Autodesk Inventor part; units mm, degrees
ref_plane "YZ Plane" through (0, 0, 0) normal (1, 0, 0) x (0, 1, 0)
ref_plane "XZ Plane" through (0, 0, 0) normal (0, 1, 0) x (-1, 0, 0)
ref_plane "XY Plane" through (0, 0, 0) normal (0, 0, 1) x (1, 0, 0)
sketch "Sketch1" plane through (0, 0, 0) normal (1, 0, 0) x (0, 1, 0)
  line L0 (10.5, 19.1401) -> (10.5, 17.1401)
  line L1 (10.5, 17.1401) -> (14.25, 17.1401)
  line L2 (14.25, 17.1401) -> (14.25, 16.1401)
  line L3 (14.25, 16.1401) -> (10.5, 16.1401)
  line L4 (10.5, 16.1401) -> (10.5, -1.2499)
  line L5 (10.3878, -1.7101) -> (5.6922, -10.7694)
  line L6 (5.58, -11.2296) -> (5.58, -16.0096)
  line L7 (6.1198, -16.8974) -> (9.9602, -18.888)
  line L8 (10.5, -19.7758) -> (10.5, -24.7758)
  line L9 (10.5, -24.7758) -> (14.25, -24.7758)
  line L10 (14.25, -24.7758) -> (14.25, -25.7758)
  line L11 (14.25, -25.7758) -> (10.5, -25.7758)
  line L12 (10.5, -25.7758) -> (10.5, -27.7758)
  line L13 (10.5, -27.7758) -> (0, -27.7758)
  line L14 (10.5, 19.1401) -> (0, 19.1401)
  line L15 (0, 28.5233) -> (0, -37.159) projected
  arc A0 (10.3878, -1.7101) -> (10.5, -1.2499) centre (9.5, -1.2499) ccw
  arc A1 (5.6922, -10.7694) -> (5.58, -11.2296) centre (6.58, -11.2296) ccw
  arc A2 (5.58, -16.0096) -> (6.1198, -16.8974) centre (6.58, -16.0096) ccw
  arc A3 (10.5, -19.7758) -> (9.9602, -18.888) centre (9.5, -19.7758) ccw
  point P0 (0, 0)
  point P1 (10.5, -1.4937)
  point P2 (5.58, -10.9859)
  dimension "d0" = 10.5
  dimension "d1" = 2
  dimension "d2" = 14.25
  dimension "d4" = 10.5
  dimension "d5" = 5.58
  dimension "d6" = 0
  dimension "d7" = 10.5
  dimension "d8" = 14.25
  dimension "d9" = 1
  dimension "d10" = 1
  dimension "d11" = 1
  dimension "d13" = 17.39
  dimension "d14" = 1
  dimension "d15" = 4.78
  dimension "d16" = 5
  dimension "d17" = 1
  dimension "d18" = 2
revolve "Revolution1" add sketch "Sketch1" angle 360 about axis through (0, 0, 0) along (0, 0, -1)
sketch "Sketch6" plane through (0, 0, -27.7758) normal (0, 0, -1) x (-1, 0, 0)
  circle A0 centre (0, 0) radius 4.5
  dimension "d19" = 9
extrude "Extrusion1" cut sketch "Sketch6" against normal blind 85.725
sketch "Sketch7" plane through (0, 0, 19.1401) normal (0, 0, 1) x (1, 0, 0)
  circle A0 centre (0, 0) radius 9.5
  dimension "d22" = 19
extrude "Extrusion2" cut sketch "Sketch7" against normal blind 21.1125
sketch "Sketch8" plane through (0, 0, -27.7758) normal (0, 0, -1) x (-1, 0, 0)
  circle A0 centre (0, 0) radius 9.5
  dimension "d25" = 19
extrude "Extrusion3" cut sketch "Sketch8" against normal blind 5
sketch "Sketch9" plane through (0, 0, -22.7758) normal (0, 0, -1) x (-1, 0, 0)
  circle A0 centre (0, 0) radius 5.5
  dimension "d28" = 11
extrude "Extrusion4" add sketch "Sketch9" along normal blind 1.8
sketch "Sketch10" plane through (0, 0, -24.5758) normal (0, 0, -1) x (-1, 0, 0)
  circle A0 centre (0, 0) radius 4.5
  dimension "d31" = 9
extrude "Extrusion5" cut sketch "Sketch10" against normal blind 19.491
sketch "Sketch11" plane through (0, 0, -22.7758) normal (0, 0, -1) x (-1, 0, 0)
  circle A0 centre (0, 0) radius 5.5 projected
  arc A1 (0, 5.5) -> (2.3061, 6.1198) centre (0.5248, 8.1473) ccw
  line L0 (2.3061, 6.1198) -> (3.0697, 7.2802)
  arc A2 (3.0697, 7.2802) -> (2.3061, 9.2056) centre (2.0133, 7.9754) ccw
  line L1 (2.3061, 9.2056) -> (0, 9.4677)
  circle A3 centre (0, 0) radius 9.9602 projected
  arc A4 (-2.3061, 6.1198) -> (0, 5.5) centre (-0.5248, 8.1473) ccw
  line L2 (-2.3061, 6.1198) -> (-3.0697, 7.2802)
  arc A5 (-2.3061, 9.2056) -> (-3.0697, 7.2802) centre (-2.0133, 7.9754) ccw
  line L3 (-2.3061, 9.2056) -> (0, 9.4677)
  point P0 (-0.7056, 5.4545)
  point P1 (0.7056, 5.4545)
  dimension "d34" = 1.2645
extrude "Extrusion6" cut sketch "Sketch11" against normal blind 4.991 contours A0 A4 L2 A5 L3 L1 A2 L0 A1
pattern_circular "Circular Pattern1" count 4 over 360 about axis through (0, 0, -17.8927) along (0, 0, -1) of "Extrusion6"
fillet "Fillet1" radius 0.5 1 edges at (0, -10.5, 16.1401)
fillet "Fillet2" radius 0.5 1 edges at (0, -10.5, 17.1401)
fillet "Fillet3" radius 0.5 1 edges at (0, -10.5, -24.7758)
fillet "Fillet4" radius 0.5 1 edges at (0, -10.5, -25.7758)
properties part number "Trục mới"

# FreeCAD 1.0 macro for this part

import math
import FreeCAD as App
import Part
import Sketcher
Q = App.Units.Quantity


def edges_at(feature, points):
    """Names of the edges that pass closest to the given points."""
    edges = feature.Shape.Edges
    near = lambda p: min(range(len(edges)), key=lambda i: edges[i].distToShape(Part.Vertex(*p))[0])
    return sorted({f"Edge{near(p) + 1}" for p in points})

doc = App.newDocument("Part")
body = doc.addObject("PartDesign::Body", "Body")

# Sketch on YZ plane
sketch1 = body.newObject("Sketcher::SketchObject", "Sketch")
sketch1.AttachmentSupport = (doc.getObject("YZ_Plane"), [""])
sketch1.MapMode = "FlatFace"
sketch1.addGeometry([
    Part.LineSegment(App.Vector(10.5, 17.14, 0), App.Vector(10.5, 19.14, 0)),  # 0
    Part.LineSegment(App.Vector(10.5, 19.14, 0), App.Vector(0, 19.14, 0)),  # 1
    Part.LineSegment(App.Vector(0, 19.14, 0), App.Vector(0, -27.78, 0)),  # 2
    Part.LineSegment(App.Vector(0, -27.78, 0), App.Vector(10.5, -27.78, 0)),  # 3
    Part.LineSegment(App.Vector(10.5, -27.78, 0), App.Vector(10.5, -25.78, 0)),  # 4
    Part.LineSegment(App.Vector(10.5, -25.78, 0), App.Vector(14.25, -25.78, 0)),  # 5
    Part.LineSegment(App.Vector(14.25, -25.78, 0), App.Vector(14.25, -24.78, 0)),  # 6
    Part.LineSegment(App.Vector(14.25, -24.78, 0), App.Vector(10.5, -24.78, 0)),  # 7
    Part.LineSegment(App.Vector(10.5, -24.78, 0), App.Vector(10.5, -19.78, 0)),  # 8
    Part.ArcOfCircle(Part.Circle(App.Vector(9.5, -19.78, 0), App.Vector(0, 0, 1), 1), math.radians(0), math.radians(63)),  # 9
    Part.LineSegment(App.Vector(9.96, -18.89, 0), App.Vector(6.12, -16.9, 0)),  # 10
    Part.ArcOfCircle(Part.Circle(App.Vector(6.58, -16.01, 0), App.Vector(0, 0, 1), 1), math.radians(180), math.radians(243)),  # 11
    Part.LineSegment(App.Vector(5.58, -16.01, 0), App.Vector(5.58, -11.23, 0)),  # 12
    Part.ArcOfCircle(Part.Circle(App.Vector(6.58, -11.23, 0), App.Vector(0, 0, 1), 1), math.radians(153), math.radians(180)),  # 13
    Part.LineSegment(App.Vector(5.69, -10.77, 0), App.Vector(10.39, -1.71, 0)),  # 14
    Part.ArcOfCircle(Part.Circle(App.Vector(9.5, -1.25, 0), App.Vector(0, 0, 1), 1), math.radians(-27), math.radians(0)),  # 15
    Part.LineSegment(App.Vector(10.5, -1.25, 0), App.Vector(10.5, 16.14, 0)),  # 16
    Part.LineSegment(App.Vector(10.5, 16.14, 0), App.Vector(14.25, 16.14, 0)),  # 17
    Part.LineSegment(App.Vector(14.25, 16.14, 0), App.Vector(14.25, 17.14, 0)),  # 18
    Part.LineSegment(App.Vector(14.25, 17.14, 0), App.Vector(10.5, 17.14, 0)),  # 19
], False)
sketch1.addConstraint([
    Sketcher.Constraint("Coincident", 0, 2, 1, 1),
    Sketcher.Constraint("Coincident", 1, 2, 2, 1),
    Sketcher.Constraint("Coincident", 2, 2, 3, 1),
    Sketcher.Constraint("Coincident", 3, 2, 4, 1),
    Sketcher.Constraint("Coincident", 4, 2, 5, 1),
    Sketcher.Constraint("Coincident", 5, 2, 6, 1),
    Sketcher.Constraint("Coincident", 6, 2, 7, 1),
    Sketcher.Constraint("Coincident", 7, 2, 8, 1),
    Sketcher.Constraint("Tangent", 8, 2, 9, 1),
    Sketcher.Constraint("Tangent", 9, 2, 10, 1),
    Sketcher.Constraint("Tangent", 10, 2, 11, 2),
    Sketcher.Constraint("Tangent", 11, 1, 12, 1),
    Sketcher.Constraint("Tangent", 12, 2, 13, 2),
    Sketcher.Constraint("Tangent", 13, 1, 14, 1),
    Sketcher.Constraint("Tangent", 14, 2, 15, 1),
    Sketcher.Constraint("Tangent", 15, 2, 16, 1),
    Sketcher.Constraint("Coincident", 16, 2, 17, 1),
    Sketcher.Constraint("Coincident", 17, 2, 18, 1),
    Sketcher.Constraint("Coincident", 18, 2, 19, 1),
    Sketcher.Constraint("Coincident", 19, 2, 0, 1),
    Sketcher.Constraint("Vertical", 0),
    Sketcher.Constraint("Horizontal", 1),
    Sketcher.Constraint("Vertical", 2),
    Sketcher.Constraint("Horizontal", 3),
    Sketcher.Constraint("Vertical", 4),
    Sketcher.Constraint("Horizontal", 5),
    Sketcher.Constraint("Vertical", 6),
    Sketcher.Constraint("Horizontal", 7),
    Sketcher.Constraint("Vertical", 8),
    Sketcher.Constraint("Vertical", 12),
    Sketcher.Constraint("Vertical", 16),
    Sketcher.Constraint("Horizontal", 17),
    Sketcher.Constraint("Vertical", 18),
    Sketcher.Constraint("Horizontal", 19),
    Sketcher.Constraint("Equal", 9, 11),
    Sketcher.Constraint("Equal", 11, 13),
    Sketcher.Constraint("Equal", 13, 15),
    Sketcher.Constraint("PointOnObject", 1, 2, -2),
    Sketcher.Constraint("Perpendicular", 10, 14),
    Sketcher.Constraint("Vertical", 9, 3, 15, 3),
    Sketcher.Constraint("Vertical", 0, 2, 3, 2),
    Sketcher.Constraint("Vertical", 4, 2, 7, 2),
    Sketcher.Constraint("Vertical", 6, 2, 17, 2),
    Sketcher.Constraint("Equal", 0, 4),
    Sketcher.Constraint("Equal", 6, 18),
    Sketcher.Constraint("Radius", 9, Q("1 mm")),
    Sketcher.Constraint("DistanceY", 0, 1, 0, 2, Q("2 mm")),
    Sketcher.Constraint("DistanceY", 6, 1, 6, 2, Q("1 mm")),
    Sketcher.Constraint("DistanceY", 8, 1, 8, 2, Q("5 mm")),
    Sketcher.Constraint("DistanceX", 1, 2, 1, 1, Q("10.5 mm")),
    Sketcher.Constraint("DistanceY", 12, 1, 12, 2, Q("4.78 mm")),
    Sketcher.Constraint("DistanceY", 16, 1, 16, 2, Q("17.39 mm")),
    Sketcher.Constraint("DistanceX", -1, 1, 5, 2, Q("14.25 mm")),
    Sketcher.Constraint("DistanceX", -1, 1, 11, 1, Q("5.58 mm")),
    Sketcher.Constraint("Angle", 10, Q("152.6009 deg")),
    Sketcher.Constraint("DistanceY", 15, 3, -1, 1, Q("1.25 mm")),
])
revolution = body.newObject("PartDesign::Revolution", "Revolution")
revolution.Profile = sketch1
revolution.ReferenceAxis = (sketch1, ["V_Axis"])
revolution.Angle = 360

# Sketch on XY plane
sketch2 = body.newObject("Sketcher::SketchObject", "Sketch001")
sketch2.AttachmentSupport = (doc.getObject("XY_Plane"), [""])
sketch2.MapMode = "FlatFace"
sketch2.AttachmentOffset = App.Placement(App.Vector(0, 0, -27.7758), App.Rotation())
sketch2.addGeometry(Part.Circle(App.Vector(0, 0, 0), App.Vector(0, 0, 1), 4.5), False)
sketch2.addConstraint([
    Sketcher.Constraint("Coincident", 0, 3, -1, 1),
    Sketcher.Constraint("Diameter", 0, Q("9 mm")),
])
pocket1 = body.newObject("PartDesign::Pocket", "Pocket")
pocket1.Profile = sketch2
pocket1.Length = 85.725
pocket1.Reversed = True

# Sketch on XY plane
sketch3 = body.newObject("Sketcher::SketchObject", "Sketch002")
sketch3.AttachmentSupport = (doc.getObject("XY_Plane"), [""])
sketch3.MapMode = "FlatFace"
sketch3.AttachmentOffset = App.Placement(App.Vector(0, 0, 19.1401), App.Rotation())
sketch3.addGeometry(Part.Circle(App.Vector(0, 0, 0), App.Vector(0, 0, 1), 10), False)
sketch3.addConstraint([
    Sketcher.Constraint("Coincident", 0, 3, -1, 1),
    Sketcher.Constraint("Diameter", 0, Q("19 mm")),
])
pocket2 = body.newObject("PartDesign::Pocket", "Pocket001")
pocket2.Profile = sketch3
pocket2.Length = 21.1125

# Sketch on XY plane
sketch4 = body.newObject("Sketcher::SketchObject", "Sketch003")
sketch4.AttachmentSupport = (doc.getObject("XY_Plane"), [""])
sketch4.MapMode = "FlatFace"
sketch4.AttachmentOffset = App.Placement(App.Vector(0, 0, -27.7758), App.Rotation())
sketch4.addGeometry(Part.Circle(App.Vector(0, 0, 0), App.Vector(0, 0, 1), 10), False)
sketch4.addConstraint([
    Sketcher.Constraint("Coincident", 0, 3, -1, 1),
    Sketcher.Constraint("Diameter", 0, Q("19 mm")),
])
pocket3 = body.newObject("PartDesign::Pocket", "Pocket002")
pocket3.Profile = sketch4
pocket3.Length = 5
pocket3.Reversed = True

# Sketch on XY plane
sketch5 = body.newObject("Sketcher::SketchObject", "Sketch004")
sketch5.AttachmentSupport = (doc.getObject("XY_Plane"), [""])
sketch5.MapMode = "FlatFace"
sketch5.AttachmentOffset = App.Placement(App.Vector(0, 0, -22.7758), App.Rotation())
sketch5.addGeometry(Part.Circle(App.Vector(0, 0, 0), App.Vector(0, 0, 1), 6), False)
sketch5.addConstraint([
    Sketcher.Constraint("Coincident", 0, 3, -1, 1),
    Sketcher.Constraint("Diameter", 0, Q("11 mm")),
])
pad1 = body.newObject("PartDesign::Pad", "Pad")
pad1.Profile = sketch5
pad1.Length = 1.8
pad1.Reversed = True

# Sketch on XY plane
sketch6 = body.newObject("Sketcher::SketchObject", "Sketch005")
sketch6.AttachmentSupport = (doc.getObject("XY_Plane"), [""])
sketch6.MapMode = "FlatFace"
sketch6.AttachmentOffset = App.Placement(App.Vector(0, 0, -24.5758), App.Rotation())
sketch6.addGeometry(Part.Circle(App.Vector(0, 0, 0), App.Vector(0, 0, 1), 4.5), False)
sketch6.addConstraint([
    Sketcher.Constraint("Coincident", 0, 3, -1, 1),
    Sketcher.Constraint("Diameter", 0, Q("9 mm")),
])
pocket4 = body.newObject("PartDesign::Pocket", "Pocket003")
pocket4.Profile = sketch6
pocket4.Length = 19.491
pocket4.Reversed = True

# Sketch on XY plane
sketch7 = body.newObject("Sketcher::SketchObject", "Sketch006")
sketch7.AttachmentSupport = (doc.getObject("XY_Plane"), [""])
sketch7.MapMode = "FlatFace"
sketch7.AttachmentOffset = App.Placement(App.Vector(0, 0, -22.7758), App.Rotation())
sketch7.addGeometry([
    Part.ArcOfCircle(Part.Circle(App.Vector(0, 0, 0), App.Vector(0, 0, 1), 5.5), math.radians(82.63), math.radians(97.37)),  # 0
    Part.ArcOfCircle(Part.Circle(App.Vector(-0.5, 8.1, 0), App.Vector(0, 0, 1), 2.7), math.radians(-131), math.radians(-94)),  # 1
    Part.LineSegment(App.Vector(-2.3, 6.1, 0), App.Vector(-3.1, 7.3, 0)),  # 2
    Part.ArcOfCircle(Part.Circle(App.Vector(-2, 8, 0), App.Vector(0, 0, 1), 1.3), math.radians(103), math.radians(213)),  # 3
    Part.LineSegment(App.Vector(-2.3, 9.2, 0), App.Vector(0, 9.5, 0)),  # 4
    Part.LineSegment(App.Vector(0, 9.5, 0), App.Vector(2.3, 9.2, 0)),  # 5
    Part.ArcOfCircle(Part.Circle(App.Vector(2, 8, 0), App.Vector(0, 0, 1), 1.3), math.radians(-33), math.radians(77)),  # 6
    Part.LineSegment(App.Vector(3.1, 7.3, 0), App.Vector(2.3, 6.1, 0)),  # 7
    Part.ArcOfCircle(Part.Circle(App.Vector(0.5, 8.1, 0), App.Vector(0, 0, 1), 2.7), math.radians(-86), math.radians(-49)),  # 8
], False)
sketch7.addConstraint([
    Sketcher.Constraint("Coincident", 0, 2, 1, 2),
    Sketcher.Constraint("Coincident", 1, 1, 2, 1),
    Sketcher.Constraint("Tangent", 2, 2, 3, 2),
    Sketcher.Constraint("Coincident", 3, 1, 4, 1),
    Sketcher.Constraint("Coincident", 4, 2, 5, 1),
    Sketcher.Constraint("Coincident", 5, 2, 6, 2),
    Sketcher.Constraint("Tangent", 6, 1, 7, 1),
    Sketcher.Constraint("Coincident", 7, 2, 8, 2),
    Sketcher.Constraint("Coincident", 8, 1, 0, 1),
    Sketcher.Constraint("Coincident", 0, 3, -1, 1),
    Sketcher.Constraint("Equal", 3, 6),
    Sketcher.Constraint("Equal", 1, 8),
    Sketcher.Constraint("Symmetric", 3, 3, 6, 3, -2),
    Sketcher.Constraint("Symmetric", 1, 3, 8, 3, -2),
    Sketcher.Constraint("PointOnObject", 4, 2, -2),
    Sketcher.Constraint("Horizontal", 3, 1, 5, 2),
    Sketcher.Constraint("Horizontal", 2, 2, 6, 1),
    Sketcher.Constraint("Vertical", 1, 1, 3, 1),
    Sketcher.Constraint("Radius", 0, Q("5.5 mm")),
    Sketcher.Constraint("Radius", 3, Q("1.2646 mm")),
    Sketcher.Constraint("Radius", 1, Q("2.6988 mm")),
    Sketcher.Constraint("Distance", 2, Q("1.389 mm")),
    Sketcher.Constraint("Distance", 4, Q("2.321 mm")),
    Sketcher.Constraint("DistanceX", 1, 1, -1, 1, Q("2.306 mm")),
    Sketcher.Constraint("DistanceY", 3, 3, 1, 3, Q("0.172 mm")),
    Sketcher.Constraint("DistanceX", 1, 3, 6, 3, Q("2.538 mm")),
    Sketcher.Constraint("DistanceX", 0, 2, 6, 3, Q("2.719 mm")),
])
pocket5 = body.newObject("PartDesign::Pocket", "Pocket004")
pocket5.Profile = sketch7
pocket5.Length = 4.991
pocket5.Reversed = True
doc.recompute()

polarpattern = body.newObject("PartDesign::PolarPattern", "PolarPattern")
polarpattern.Originals = [pocket5]
polarpattern.Axis = (doc.getObject("Z_Axis"), [""])
polarpattern.Angle = 360
polarpattern.Occurrences = 4
body.Tip = polarpattern
doc.recompute()

fillet = body.newObject("PartDesign::Fillet", "Fillet")
fillet.Base = (polarpattern, edges_at(polarpattern, [(0, -10.5, 16.14)]))
fillet.Radius = 0.5
doc.recompute()

fillet2 = body.newObject("PartDesign::Fillet", "Fillet001")
fillet2.Base = (fillet, edges_at(fillet, [(0, -10.5, 17.14)]))
fillet2.Radius = 0.5
doc.recompute()

fillet3 = body.newObject("PartDesign::Fillet", "Fillet002")
fillet3.Base = (fillet2, edges_at(fillet2, [(0, -10.5, -24.776)]))
fillet3.Radius = 0.5
doc.recompute()

fillet4 = body.newObject("PartDesign::Fillet", "Fillet003")
fillet4.Base = (fillet3, edges_at(fillet3, [(0, -10.5, -25.776)]))
fillet4.Radius = 0.5

doc.recompute()
